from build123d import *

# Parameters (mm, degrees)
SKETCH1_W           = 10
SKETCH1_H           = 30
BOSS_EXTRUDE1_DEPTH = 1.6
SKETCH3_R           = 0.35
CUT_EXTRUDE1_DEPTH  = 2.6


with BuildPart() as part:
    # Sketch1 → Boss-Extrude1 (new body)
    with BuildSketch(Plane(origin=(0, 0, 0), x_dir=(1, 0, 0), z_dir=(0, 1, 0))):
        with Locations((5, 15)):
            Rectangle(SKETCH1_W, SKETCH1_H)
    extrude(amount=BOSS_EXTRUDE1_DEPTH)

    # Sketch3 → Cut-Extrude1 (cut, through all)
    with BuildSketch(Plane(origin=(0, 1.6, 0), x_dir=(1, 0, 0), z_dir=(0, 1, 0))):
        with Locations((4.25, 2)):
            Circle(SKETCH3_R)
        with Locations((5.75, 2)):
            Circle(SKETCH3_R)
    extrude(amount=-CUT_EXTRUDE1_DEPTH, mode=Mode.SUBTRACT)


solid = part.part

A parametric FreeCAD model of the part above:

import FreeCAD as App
import Part
import Sketcher

V = App.Vector
Q = App.Units.Quantity

doc = App.newDocument("Part")
body = doc.addObject("PartDesign::Body", "Body")

# Sketch on XZ plane
sketch1 = body.newObject("Sketcher::SketchObject", "Sketch")
sketch1.AttachmentSupport = (doc.getObject("XZ_Plane"), [""])
sketch1.MapMode = "FlatFace"
sketch1.addGeometry(Part.LineSegment(V(0, -30, 0), V(0, 0, 0)), False)
sketch1.addGeometry(Part.LineSegment(V(0, 0, 0), V(10, 0, 0)), False)
sketch1.addGeometry(Part.LineSegment(V(10, 0, 0), V(10, -30, 0)), False)
sketch1.addGeometry(Part.LineSegment(V(10, -30, 0), V(0, -30, 0)), False)
sketch1.addConstraint(Sketcher.Constraint("Coincident", 0, 2, 1, 1))
sketch1.addConstraint(Sketcher.Constraint("Coincident", 1, 2, 2, 1))
sketch1.addConstraint(Sketcher.Constraint("Coincident", 2, 2, 3, 1))
sketch1.addConstraint(Sketcher.Constraint("Coincident", 3, 2, 0, 1))
sketch1.addConstraint(Sketcher.Constraint("Vertical", 0))
sketch1.addConstraint(Sketcher.Constraint("Horizontal", 1))
sketch1.addConstraint(Sketcher.Constraint("Vertical", 2))
sketch1.addConstraint(Sketcher.Constraint("Horizontal", 3))
sketch1.addConstraint(Sketcher.Constraint("Coincident", 0, 2, -1, 1))
sketch1.addConstraint(Sketcher.Constraint("DistanceX", 1, 1, 1, 2, Q("10 mm")))
sketch1.addConstraint(Sketcher.Constraint("DistanceY", 0, 1, 0, 2, Q("30 mm")))
pad1 = body.newObject("PartDesign::Pad", "Pad")
pad1.Profile = sketch1
pad1.Length = 1.6
pad1.Reversed = True

# Sketch on XZ plane
sketch2 = body.newObject("Sketcher::SketchObject", "Sketch001")
sketch2.AttachmentSupport = (doc.getObject("XZ_Plane"), [""])
sketch2.MapMode = "FlatFace"
sketch2.AttachmentOffset = App.Placement(V(0, 0, -1.6), App.Rotation())
sketch2.addGeometry(Part.Circle(V(4.25, -2, 0), V(0, 0, 1), 0.35), False)
sketch2.addGeometry(Part.Circle(V(5.75, -2, 0), V(0, 0, 1), 0.35), False)
sketch2.addConstraint(Sketcher.Constraint("Equal", 0, 1))
sketch2.addConstraint(Sketcher.Constraint("Horizontal", 0, 3, 1, 3))
sketch2.addConstraint(Sketcher.Constraint("Diameter", 0, Q("0.7 mm")))
sketch2.addConstraint(Sketcher.Constraint("DistanceY", 0, 3, -1, 1, Q("2 mm")))
sketch2.addConstraint(Sketcher.Constraint("DistanceX", 0, 3, 1, 3, Q("1.5 mm")))
sketch2.addConstraint(Sketcher.Constraint("DistanceX", -1, 1, 0, 3, Q("4.25 mm")))
pocket1 = body.newObject("PartDesign::Pocket", "Pocket")
pocket1.Profile = sketch2
pocket1.Type = "ThroughAll"
pocket1.Reversed = True

doc.recompute()
